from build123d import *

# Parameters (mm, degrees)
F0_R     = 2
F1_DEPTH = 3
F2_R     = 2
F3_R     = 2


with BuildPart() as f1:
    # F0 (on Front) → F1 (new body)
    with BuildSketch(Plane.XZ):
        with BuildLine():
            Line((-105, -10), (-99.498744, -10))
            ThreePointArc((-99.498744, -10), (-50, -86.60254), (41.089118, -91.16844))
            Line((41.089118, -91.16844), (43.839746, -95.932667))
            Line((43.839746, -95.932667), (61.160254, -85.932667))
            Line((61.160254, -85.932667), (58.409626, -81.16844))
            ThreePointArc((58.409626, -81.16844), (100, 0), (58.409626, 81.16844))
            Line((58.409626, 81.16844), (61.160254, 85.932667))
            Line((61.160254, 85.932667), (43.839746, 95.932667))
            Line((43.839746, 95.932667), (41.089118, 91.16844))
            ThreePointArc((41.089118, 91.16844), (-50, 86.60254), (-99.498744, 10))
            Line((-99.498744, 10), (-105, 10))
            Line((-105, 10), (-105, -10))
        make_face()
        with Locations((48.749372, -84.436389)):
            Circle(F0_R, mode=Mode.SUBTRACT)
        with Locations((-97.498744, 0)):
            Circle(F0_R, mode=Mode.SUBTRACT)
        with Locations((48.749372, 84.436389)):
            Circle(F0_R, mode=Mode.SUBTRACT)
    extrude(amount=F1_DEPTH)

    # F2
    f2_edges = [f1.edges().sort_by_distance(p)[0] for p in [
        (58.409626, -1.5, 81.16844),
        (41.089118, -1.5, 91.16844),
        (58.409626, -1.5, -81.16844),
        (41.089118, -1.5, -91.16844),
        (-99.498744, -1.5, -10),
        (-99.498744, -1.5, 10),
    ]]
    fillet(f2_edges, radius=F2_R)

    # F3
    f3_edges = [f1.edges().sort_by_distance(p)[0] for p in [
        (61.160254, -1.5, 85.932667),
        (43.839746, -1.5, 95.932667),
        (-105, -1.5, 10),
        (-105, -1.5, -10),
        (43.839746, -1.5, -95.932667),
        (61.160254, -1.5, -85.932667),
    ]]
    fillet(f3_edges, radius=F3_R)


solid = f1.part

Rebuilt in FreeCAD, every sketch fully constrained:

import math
import FreeCAD as App
import Part
import Sketcher
from FreeCAD import Vector
Q = App.Units.Quantity


def edges_at(feature, points):
    """Names of the edges that pass closest to the given points."""
    edges = feature.Shape.Edges
    near = lambda p: min(range(len(edges)), key=lambda i: edges[i].distToShape(Part.Vertex(*p))[0])
    return sorted({f"Edge{near(p) + 1}" for p in points})

doc = App.newDocument("Part")
body = doc.addObject("PartDesign::Body", "Body")

sketch1 = doc.addObject("Sketcher::SketchObject", "Sketch")
body.addObject(sketch1)
sketch1.AttachmentSupport = (doc.XZ_Plane, [""])
sketch1.MapMode = "FlatFace"
sketch1.addGeometry(Part.LineSegment(Vector(-105, -10, 0), Vector(-99.5, -10, 0)), False)
sketch1.addGeometry(Part.ArcOfCircle(Part.Circle(Vector(0, 0, 0), Vector(0, 0, 1), 100), math.radians(-174), math.radians(-66)), False)
sketch1.addGeometry(Part.LineSegment(Vector(41.1, -91.2, 0), Vector(43.8, -95.9, 0)), False)
sketch1.addGeometry(Part.LineSegment(Vector(43.8, -95.9, 0), Vector(61.2, -85.9, 0)), False)
sketch1.addGeometry(Part.LineSegment(Vector(61.2, -85.9, 0), Vector(58.4, -81.2, 0)), False)
sketch1.addGeometry(Part.ArcOfCircle(Part.Circle(Vector(0, 0, 0), Vector(0, 0, 1), 100), math.radians(-54), math.radians(54)), False)
sketch1.addGeometry(Part.LineSegment(Vector(58.4, 81.2, 0), Vector(61.2, 85.9, 0)), False)
sketch1.addGeometry(Part.LineSegment(Vector(61.2, 85.9, 0), Vector(43.8, 95.9, 0)), False)
sketch1.addGeometry(Part.LineSegment(Vector(43.8, 95.9, 0), Vector(41.1, 91.2, 0)), False)
sketch1.addGeometry(Part.ArcOfCircle(Part.Circle(Vector(0, 0, 0), Vector(0, 0, 1), 100), math.radians(66), math.radians(174)), False)
sketch1.addGeometry(Part.LineSegment(Vector(-99.5, 10, 0), Vector(-105, 10, 0)), False)
sketch1.addGeometry(Part.LineSegment(Vector(-105, 10, 0), Vector(-105, -10, 0)), False)
sketch1.addGeometry(Part.Circle(Vector(48.7, -84.4, 0), Vector(0, 0, 1), 2), False)
sketch1.addGeometry(Part.Circle(Vector(-97.5, 0, 0), Vector(0, 0, 1), 2), False)
sketch1.addGeometry(Part.Circle(Vector(48.7, 84.4, 0), Vector(0, 0, 1), 2), False)
sketch1.addConstraint(Sketcher.Constraint("Coincident", 0, 2, 1, 1))
sketch1.addConstraint(Sketcher.Constraint("Coincident", 1, 2, 2, 1))
sketch1.addConstraint(Sketcher.Constraint("Coincident", 2, 2, 3, 1))
sketch1.addConstraint(Sketcher.Constraint("Coincident", 3, 2, 4, 1))
sketch1.addConstraint(Sketcher.Constraint("Coincident", 4, 2, 5, 1))
sketch1.addConstraint(Sketcher.Constraint("Coincident", 5, 2, 6, 1))
sketch1.addConstraint(Sketcher.Constraint("Coincident", 6, 2, 7, 1))
sketch1.addConstraint(Sketcher.Constraint("Coincident", 7, 2, 8, 1))
sketch1.addConstraint(Sketcher.Constraint("Coincident", 8, 2, 9, 1))
sketch1.addConstraint(Sketcher.Constraint("Coincident", 9, 2, 10, 1))
sketch1.addConstraint(Sketcher.Constraint("Coincident", 10, 2, 11, 1))
sketch1.addConstraint(Sketcher.Constraint("Coincident", 11, 2, 0, 1))
sketch1.addConstraint(Sketcher.Constraint("Horizontal", 0))
sketch1.addConstraint(Sketcher.Constraint("Horizontal", 10))
sketch1.addConstraint(Sketcher.Constraint("Vertical", 11))
sketch1.addConstraint(Sketcher.Constraint("Coincident", 1, 3, -1, 1))
sketch1.addConstraint(Sketcher.Constraint("Coincident", 5, 3, -1, 1))
sketch1.addConstraint(Sketcher.Constraint("Coincident", 9, 3, -1, 1))
sketch1.addConstraint(Sketcher.Constraint("Equal", 1, 5))
sketch1.addConstraint(Sketcher.Constraint("Equal", 5, 9))
sketch1.addConstraint(Sketcher.Constraint("Equal", 12, 13))
sketch1.addConstraint(Sketcher.Constraint("Equal", 13, 14))
sketch1.addConstraint(Sketcher.Constraint("Symmetric", 12, 3, 14, 3, -1))
sketch1.addConstraint(Sketcher.Constraint("Symmetric", 3, 2, 6, 2, -1))
sketch1.addConstraint(Sketcher.Constraint("Symmetric", 2, 2, 7, 2, -1))
sketch1.addConstraint(Sketcher.Constraint("PointOnObject", 13, 3, -1))
sketch1.addConstraint(Sketcher.Constraint("Perpendicular", 2, 3))
sketch1.addConstraint(Sketcher.Constraint("Perpendicular", 3, 4))
sketch1.addConstraint(Sketcher.Constraint("Perpendicular", 6, 7))
sketch1.addConstraint(Sketcher.Constraint("Perpendicular", 7, 8))
sketch1.addConstraint(Sketcher.Constraint("Vertical", 0, 2, 9, 2))
sketch1.addConstraint(Sketcher.Constraint("Equal", 2, 4))
sketch1.addConstraint(Sketcher.Constraint("Diameter", 12, Q("4 mm")))
sketch1.addConstraint(Sketcher.Constraint("Radius", 1, Q("100.000001 mm")))
sketch1.addConstraint(Sketcher.Constraint("DistanceY", 11, 2, 11, 1, Q("20 mm")))
sketch1.addConstraint(Sketcher.Constraint("Angle", 2, Q("-59.999998 deg")))
sketch1.addConstraint(Sketcher.Constraint("Distance", 3, Q("20 mm")))
sketch1.addConstraint(Sketcher.Constraint("DistanceX", 10, 2, -1, 1, Q("105 mm")))
sketch1.addConstraint(Sketcher.Constraint("DistanceX", 0, 2, 13, 3, Q("2 mm")))
sketch1.addConstraint(Sketcher.Constraint("DistanceY", 12, 3, -1, 1, Q("84.436389 mm")))
sketch1.addConstraint(Sketcher.Constraint("DistanceX", 9, 3, 12, 3, Q("48.749371 mm")))
sketch1.addConstraint(Sketcher.Constraint("DistanceY", 2, 2, 1, 3, Q("95.932668 mm")))
pad1 = doc.addObject("PartDesign::Pad", "Pad")
body.addObject(pad1)
pad1.Profile = sketch1
pad1.Length = 3
doc.recompute()

fillet = doc.addObject("PartDesign::Fillet", "Fillet")
body.addObject(fillet)
fillet.Base = (pad1, edges_at(pad1, [
    (58.41, -1.5, 81.168),
    (41.089, -1.5, 91.168),
    (58.41, -1.5, -81.168),
    (41.089, -1.5, -91.168),
    (-99.499, -1.5, -10),
    (-99.499, -1.5, 10),
]))
fillet.Radius = 2
doc.recompute()

fillet2 = doc.addObject("PartDesign::Fillet", "Fillet001")
body.addObject(fillet2)
fillet2.Base = (fillet, edges_at(fillet, [
    (61.16, -1.5, 85.933),
    (43.84, -1.5, 95.933),
    (-105, -1.5, 10),
    (-105, -1.5, -10),
    (43.84, -1.5, -95.933),
    (61.16, -1.5, -85.933),
]))
fillet2.Radius = 2

doc.recompute()
